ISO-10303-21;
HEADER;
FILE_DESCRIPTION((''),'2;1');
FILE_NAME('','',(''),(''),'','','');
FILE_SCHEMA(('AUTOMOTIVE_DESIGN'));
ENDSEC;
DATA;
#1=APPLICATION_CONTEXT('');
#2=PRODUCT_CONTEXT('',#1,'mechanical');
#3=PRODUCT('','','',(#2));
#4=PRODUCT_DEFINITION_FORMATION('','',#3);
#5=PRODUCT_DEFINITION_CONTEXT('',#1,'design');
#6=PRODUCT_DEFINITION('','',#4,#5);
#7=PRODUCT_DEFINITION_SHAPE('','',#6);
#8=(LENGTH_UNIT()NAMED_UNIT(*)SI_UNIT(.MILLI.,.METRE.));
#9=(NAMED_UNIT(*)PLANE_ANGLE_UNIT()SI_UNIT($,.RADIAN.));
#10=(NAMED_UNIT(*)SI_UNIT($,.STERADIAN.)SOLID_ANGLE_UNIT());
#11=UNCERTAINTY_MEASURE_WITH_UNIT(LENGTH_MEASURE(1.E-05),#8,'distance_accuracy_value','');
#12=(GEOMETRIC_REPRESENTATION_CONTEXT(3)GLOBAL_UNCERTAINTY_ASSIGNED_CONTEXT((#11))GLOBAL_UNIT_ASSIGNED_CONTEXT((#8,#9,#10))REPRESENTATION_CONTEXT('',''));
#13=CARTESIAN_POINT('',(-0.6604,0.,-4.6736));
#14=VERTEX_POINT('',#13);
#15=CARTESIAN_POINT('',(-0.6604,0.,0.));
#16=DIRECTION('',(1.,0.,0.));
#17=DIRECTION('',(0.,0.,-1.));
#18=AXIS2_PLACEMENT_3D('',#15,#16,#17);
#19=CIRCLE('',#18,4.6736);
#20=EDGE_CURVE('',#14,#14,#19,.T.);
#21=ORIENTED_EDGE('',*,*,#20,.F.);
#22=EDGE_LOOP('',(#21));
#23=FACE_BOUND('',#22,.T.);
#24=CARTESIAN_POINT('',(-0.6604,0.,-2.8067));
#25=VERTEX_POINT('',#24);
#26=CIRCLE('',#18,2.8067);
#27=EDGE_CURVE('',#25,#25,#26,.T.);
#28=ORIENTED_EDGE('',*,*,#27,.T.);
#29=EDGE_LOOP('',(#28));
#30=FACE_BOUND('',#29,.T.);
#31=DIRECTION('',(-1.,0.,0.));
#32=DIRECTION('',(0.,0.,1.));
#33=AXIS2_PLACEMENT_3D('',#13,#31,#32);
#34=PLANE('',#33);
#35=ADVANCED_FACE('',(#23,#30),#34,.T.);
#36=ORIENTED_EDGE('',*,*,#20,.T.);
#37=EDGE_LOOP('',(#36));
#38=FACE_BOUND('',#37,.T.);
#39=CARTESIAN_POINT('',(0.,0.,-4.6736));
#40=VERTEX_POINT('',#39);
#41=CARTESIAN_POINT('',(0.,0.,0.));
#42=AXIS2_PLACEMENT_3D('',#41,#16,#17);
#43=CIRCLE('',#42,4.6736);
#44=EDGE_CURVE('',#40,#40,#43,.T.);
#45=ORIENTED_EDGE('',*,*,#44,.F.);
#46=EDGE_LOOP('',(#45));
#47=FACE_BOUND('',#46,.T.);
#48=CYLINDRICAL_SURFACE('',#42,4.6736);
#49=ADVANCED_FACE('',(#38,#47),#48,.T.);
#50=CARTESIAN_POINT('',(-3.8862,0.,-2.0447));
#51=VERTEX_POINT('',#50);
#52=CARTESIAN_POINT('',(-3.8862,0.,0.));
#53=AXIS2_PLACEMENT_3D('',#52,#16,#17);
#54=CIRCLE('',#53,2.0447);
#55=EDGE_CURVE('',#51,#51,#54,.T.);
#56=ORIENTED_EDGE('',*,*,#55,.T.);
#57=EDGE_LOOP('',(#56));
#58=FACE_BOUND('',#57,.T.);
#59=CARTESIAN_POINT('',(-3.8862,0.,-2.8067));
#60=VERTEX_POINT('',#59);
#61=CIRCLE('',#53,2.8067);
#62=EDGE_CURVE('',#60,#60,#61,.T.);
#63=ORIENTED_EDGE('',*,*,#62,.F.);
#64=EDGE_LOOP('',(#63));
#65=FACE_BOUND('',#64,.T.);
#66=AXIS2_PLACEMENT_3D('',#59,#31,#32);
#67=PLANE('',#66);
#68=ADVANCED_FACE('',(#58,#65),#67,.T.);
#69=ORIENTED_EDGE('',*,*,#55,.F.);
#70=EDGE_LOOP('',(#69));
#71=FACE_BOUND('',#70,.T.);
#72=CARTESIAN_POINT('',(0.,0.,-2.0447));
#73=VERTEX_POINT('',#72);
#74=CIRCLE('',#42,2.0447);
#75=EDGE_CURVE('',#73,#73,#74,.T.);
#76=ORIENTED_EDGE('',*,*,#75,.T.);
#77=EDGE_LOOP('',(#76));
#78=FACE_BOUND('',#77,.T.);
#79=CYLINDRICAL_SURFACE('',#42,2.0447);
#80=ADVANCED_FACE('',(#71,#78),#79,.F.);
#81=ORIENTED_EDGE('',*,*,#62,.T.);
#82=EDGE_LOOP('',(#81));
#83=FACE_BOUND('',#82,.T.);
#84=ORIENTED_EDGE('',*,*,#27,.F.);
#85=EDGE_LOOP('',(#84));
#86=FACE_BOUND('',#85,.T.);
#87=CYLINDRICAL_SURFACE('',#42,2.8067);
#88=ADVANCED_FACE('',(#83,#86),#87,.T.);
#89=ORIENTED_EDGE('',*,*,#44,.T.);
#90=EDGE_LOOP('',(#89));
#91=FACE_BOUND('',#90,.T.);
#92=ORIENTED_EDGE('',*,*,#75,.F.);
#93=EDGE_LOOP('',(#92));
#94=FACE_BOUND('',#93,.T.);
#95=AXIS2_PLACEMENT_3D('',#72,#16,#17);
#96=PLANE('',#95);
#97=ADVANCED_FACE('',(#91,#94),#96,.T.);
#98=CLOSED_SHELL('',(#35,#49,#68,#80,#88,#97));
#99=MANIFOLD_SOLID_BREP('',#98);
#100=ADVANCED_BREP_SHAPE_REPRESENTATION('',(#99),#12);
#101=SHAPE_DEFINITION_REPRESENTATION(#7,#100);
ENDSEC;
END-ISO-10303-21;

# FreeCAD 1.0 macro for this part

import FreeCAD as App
import Part
import Sketcher
from FreeCAD import Vector
Q = App.Units.Quantity


def add_polygon(sketch, points):
    """Adds a closed chain of lines whose ends are joined by coincident constraints."""
    first, n = sketch.GeometryCount, len(points)
    for a, b in zip(points, points[1:] + points[:1]):
        sketch.addGeometry(Part.LineSegment(App.Vector(*a, 0), App.Vector(*b, 0)), False)
    for i in range(n):
        sketch.addConstraint(Sketcher.Constraint("Coincident", first + i, 2, first + (i + 1) % n, 1))

doc = App.newDocument("Part")
body = doc.addObject("PartDesign::Body", "Body")

# Sketch on XZ plane
sketch1 = body.newObject("Sketcher::SketchObject", "Sketch")
sketch1.AttachmentSupport = (doc.getObject("XZ_Plane"), [""])
sketch1.MapMode = "FlatFace"
add_polygon(sketch1, [(0, -2), (0, -4.7), (-0.7, -4.7), (-0.7, -2.8), (-3.9, -2.8), (-3.9, -2)])  # lines 0-5
sketch1.addConstraint(Sketcher.Constraint("Vertical", 0))
sketch1.addConstraint(Sketcher.Constraint("Horizontal", 1))
sketch1.addConstraint(Sketcher.Constraint("Vertical", 2))
sketch1.addConstraint(Sketcher.Constraint("Horizontal", 3))
sketch1.addConstraint(Sketcher.Constraint("Vertical", 4))
sketch1.addConstraint(Sketcher.Constraint("Horizontal", 5))
sketch1.addConstraint(Sketcher.Constraint("PointOnObject", 0, 2, -2))
sketch1.addConstraint(Sketcher.Constraint("DistanceY", 4, 1, 4, 2, Q("0.03 in")))
sketch1.addConstraint(Sketcher.Constraint("DistanceX", 1, 2, 1, 1, Q("0.026 in")))
sketch1.addConstraint(Sketcher.Constraint("DistanceX", 3, 2, 3, 1, Q("0.127 in")))
sketch1.addConstraint(Sketcher.Constraint("DistanceY", 0, 2, 0, 1, Q("0.1035 in")))
sketch1.addConstraint(Sketcher.Constraint("DistanceY", 0, 2, -1, 1, Q("0.184 in")))
revolution = body.newObject("PartDesign::Revolution", "Revolution")
revolution.Profile = sketch1
revolution.ReferenceAxis = (sketch1, ["H_Axis"])
revolution.Angle = 360

doc.recompute()
